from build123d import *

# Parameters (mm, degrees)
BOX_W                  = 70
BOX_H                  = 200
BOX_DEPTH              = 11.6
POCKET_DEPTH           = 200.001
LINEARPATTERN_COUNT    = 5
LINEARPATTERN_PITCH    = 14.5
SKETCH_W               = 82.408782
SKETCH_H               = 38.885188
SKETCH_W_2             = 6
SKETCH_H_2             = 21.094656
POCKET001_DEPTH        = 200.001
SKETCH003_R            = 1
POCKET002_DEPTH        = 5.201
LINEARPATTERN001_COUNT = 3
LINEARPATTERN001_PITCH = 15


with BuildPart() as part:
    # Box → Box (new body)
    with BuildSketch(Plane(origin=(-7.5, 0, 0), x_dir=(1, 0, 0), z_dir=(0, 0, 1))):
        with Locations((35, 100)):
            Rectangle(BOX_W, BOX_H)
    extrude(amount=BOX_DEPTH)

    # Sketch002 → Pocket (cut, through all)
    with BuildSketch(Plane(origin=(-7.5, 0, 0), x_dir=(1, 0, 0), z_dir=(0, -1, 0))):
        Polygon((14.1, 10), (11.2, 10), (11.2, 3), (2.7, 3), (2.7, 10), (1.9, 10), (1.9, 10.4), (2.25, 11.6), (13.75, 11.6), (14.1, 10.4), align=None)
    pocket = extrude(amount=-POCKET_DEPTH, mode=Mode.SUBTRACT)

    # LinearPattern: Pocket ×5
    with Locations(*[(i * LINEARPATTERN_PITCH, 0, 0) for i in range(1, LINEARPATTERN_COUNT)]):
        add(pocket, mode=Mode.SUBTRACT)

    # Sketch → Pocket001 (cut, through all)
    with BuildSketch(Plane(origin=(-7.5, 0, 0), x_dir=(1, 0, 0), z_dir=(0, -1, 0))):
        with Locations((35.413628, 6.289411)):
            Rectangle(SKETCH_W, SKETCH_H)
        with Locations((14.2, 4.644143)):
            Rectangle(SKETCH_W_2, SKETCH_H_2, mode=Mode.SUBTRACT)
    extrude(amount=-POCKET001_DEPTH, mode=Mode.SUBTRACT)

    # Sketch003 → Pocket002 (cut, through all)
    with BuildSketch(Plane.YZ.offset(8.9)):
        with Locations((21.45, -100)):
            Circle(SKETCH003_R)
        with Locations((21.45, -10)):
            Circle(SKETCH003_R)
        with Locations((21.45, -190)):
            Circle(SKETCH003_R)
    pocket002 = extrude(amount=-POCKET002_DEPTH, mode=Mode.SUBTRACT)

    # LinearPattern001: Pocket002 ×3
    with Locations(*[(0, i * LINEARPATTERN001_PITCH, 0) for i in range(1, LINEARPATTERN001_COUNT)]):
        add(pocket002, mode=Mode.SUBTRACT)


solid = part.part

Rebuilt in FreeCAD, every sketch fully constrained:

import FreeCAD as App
import Part
import Sketcher


def add_polygon(sketch, points):
    """Adds a closed chain of lines whose ends are joined by coincident constraints."""
    first, n = sketch.GeometryCount, len(points)
    for a, b in zip(points, points[1:] + points[:1]):
        sketch.addGeometry(Part.LineSegment(App.Vector(*a, 0), App.Vector(*b, 0)), False)
    for i in range(n):
        sketch.addConstraint(Sketcher.Constraint("Coincident", first + i, 2, first + (i + 1) % n, 1))

doc = App.newDocument("Part")
params = doc.addObject("Spreadsheet::Sheet", "Params")
for row, (alias, value) in enumerate([
    ("sketch1_width", "70 mm"),
    ("sketch1_height", "200 mm"),
    ("pad1_length", "11.6 mm"),
    ("sketch2_height", "7 mm"),
    ("sketch2_width", "2.9 mm"),
    ("sketch2_width2", "11.5 mm"),
    ("sketch2_width3", "0.8 mm"),
    ("sketch2_width4", "8.5 mm"),
    ("linearpattern_pitch", "14.5 mm"),
    ("sketch3_width", "6 mm"),
    ("sketch4_diameter", "2 mm"),
    ("linearpattern2_pitch", "15 mm"),
], start=1):
    params.set(f"A{row}", alias)
    params.set(f"B{row}", "=" + value)
    params.setAlias(f"B{row}", alias)

body = doc.addObject("PartDesign::Body", "Body")

sketch1 = doc.addObject("Sketcher::SketchObject", "Sketch")
body.addObject(sketch1)
sketch1.AttachmentSupport = (doc.XY_Plane, [""])
sketch1.MapMode = "FlatFace"
add_polygon(sketch1, [(-8, 200), (-8, 0), (62, 0), (62, 200)])
sketch1.addConstraint([
    Sketcher.Constraint("Vertical", 0),
    Sketcher.Constraint("Horizontal", 1),
    Sketcher.Constraint("Vertical", 2),
    Sketcher.Constraint("Horizontal", 3),
    Sketcher.Constraint("PointOnObject", 0, 2, -1),
    Sketcher.Constraint("DistanceX", 1, 1, 1, 2, 70.0),
    Sketcher.Constraint("DistanceY", 0, 2, 0, 1, 200.0),
    Sketcher.Constraint("DistanceX", 0, 2, -1, 1, 7.5),
])
sketch1.setExpression("Constraints[9]", "Params.sketch1_width")
sketch1.setExpression("Constraints[10]", "Params.sketch1_height")
pad1 = doc.addObject("PartDesign::Pad", "Pad")
body.addObject(pad1)
pad1.Profile = sketch1
pad1.setExpression("Length", "Params.pad1_length")

sketch2 = doc.addObject("Sketcher::SketchObject", "Sketch001")
body.addObject(sketch2)
sketch2.AttachmentSupport = (doc.XZ_Plane, [""])
sketch2.MapMode = "FlatFace"
add_polygon(sketch2, [(3.7, 10), (6.6, 10), (6.6, 10.4), (6.25, 11.6), (-5.25, 11.6), (-5.6, 10.4), (-5.6, 10), (-4.8, 10), (-4.8, 3), (3.7, 3)])
sketch2.addConstraint([
    Sketcher.Constraint("Horizontal", 0),
    Sketcher.Constraint("Vertical", 1),
    Sketcher.Constraint("Horizontal", 3),
    Sketcher.Constraint("Vertical", 5),
    Sketcher.Constraint("Horizontal", 6),
    Sketcher.Constraint("Vertical", 7),
    Sketcher.Constraint("Horizontal", 8),
    Sketcher.Constraint("Vertical", 9),
    Sketcher.Constraint("Horizontal", 1, 2, 4, 2),
    Sketcher.Constraint("Horizontal", 0, 2, 5, 2),
    Sketcher.Constraint("Equal", 2, 4),
    Sketcher.Constraint("DistanceY", 7, 2, 7, 1, 7.0),
    Sketcher.Constraint("DistanceX", 0, 1, 0, 2, 2.9),
    Sketcher.Constraint("DistanceX", 3, 2, 3, 1, 11.5),
    Sketcher.Constraint("DistanceX", 6, 1, 6, 2, 0.8),
    Sketcher.Constraint("DistanceX", 8, 1, 8, 2, 8.5),
    Sketcher.Constraint("DistanceY", 1, 1, 1, 2, 0.4),
    Sketcher.Constraint("DistanceY", -1, 1, 0, 2, 10.0),
    Sketcher.Constraint("DistanceX", -1, 1, 0, 2, 6.6),
    Sketcher.Constraint("DistanceY", -1, 1, 2, 2, 11.6),
])
sketch2.setExpression("Constraints[21]", "Params.sketch2_height")
sketch2.setExpression("Constraints[22]", "Params.sketch2_width")
sketch2.setExpression("Constraints[23]", "Params.sketch2_width2")
sketch2.setExpression("Constraints[24]", "Params.sketch2_width3")
sketch2.setExpression("Constraints[25]", "Params.sketch2_width4")
pocket1 = doc.addObject("PartDesign::Pocket", "Pocket")
body.addObject(pocket1)
pocket1.Profile = sketch2
pocket1.Type = "ThroughAll"
doc.recompute()

linearpattern = doc.addObject("PartDesign::LinearPattern", "LinearPattern")
body.addObject(linearpattern)
linearpattern.Originals = [pocket1]
linearpattern.Direction = (doc.X_Axis, [""])
linearpattern.Mode = "offset"
linearpattern.setExpression("Offset", "Params.linearpattern_pitch")
linearpattern.Occurrences = 5
body.Tip = linearpattern

sketch3 = doc.addObject("Sketcher::SketchObject", "Sketch002")
body.addObject(sketch3)
sketch3.AttachmentSupport = (doc.XZ_Plane, [""])
sketch3.MapMode = "FlatFace"
add_polygon(sketch3, [(-13, 26), (-13, -13), (69, -13), (69, 26)])
add_polygon(sketch3, [(10, -6), (4, -6), (4, 15), (10, 15)])
sketch3.addConstraint([
    Sketcher.Constraint("Vertical", 0),
    Sketcher.Constraint("Horizontal", 1),
    Sketcher.Constraint("Vertical", 2),
    Sketcher.Constraint("Horizontal", 3),
    Sketcher.Constraint("Horizontal", 4),
    Sketcher.Constraint("Vertical", 5),
    Sketcher.Constraint("Horizontal", 6),
    Sketcher.Constraint("Vertical", 7),
    Sketcher.Constraint("DistanceX", 4, 2, 4, 1, 6.0),
    Sketcher.Constraint("DistanceX", -1, 1, 4, 2, 3.7),
    Sketcher.Constraint("DistanceY", 0, 2, 4, 2, 7.249998),
    Sketcher.Constraint("DistanceX", 1, 1, 1, 2, 82.408782),
    Sketcher.Constraint("DistanceY", 0, 2, 0, 1, 38.885188),
    Sketcher.Constraint("DistanceY", 5, 1, 5, 2, 21.094656),
    Sketcher.Constraint("DistanceX", -1, 1, 1, 2, 69.118019),
    Sketcher.Constraint("DistanceY", -1, 1, 5, 2, 15.191471),
])
sketch3.setExpression("Constraints[16]", "Params.sketch3_width")
pocket2 = doc.addObject("PartDesign::Pocket", "Pocket001")
body.addObject(pocket2)
pocket2.Profile = sketch3
pocket2.Type = "ThroughAll"

sketch4 = doc.addObject("Sketcher::SketchObject", "Sketch003")
body.addObject(sketch4)
sketch4.AttachmentSupport = (doc.YZ_Plane, [""])
sketch4.MapMode = "FlatFace"
sketch4.AttachmentOffset = App.Placement(App.Vector(0, 0, 8.9), App.Rotation())
sketch4.addGeometry([
    Part.Circle(App.Vector(21.4, -100, 0), App.Vector(0, 0, 1), 1),
    Part.Circle(App.Vector(21.4, -10, 0), App.Vector(0, 0, 1), 1),
    Part.Circle(App.Vector(21.4, -190, 0), App.Vector(0, 0, 1), 1),
], False)
sketch4.addConstraint([
    Sketcher.Constraint("Equal", 0, 1),
    Sketcher.Constraint("Equal", 1, 2),
    Sketcher.Constraint("Vertical", 0, 3, 1, 3),
    Sketcher.Constraint("Vertical", 1, 3, 2, 3),
    Sketcher.Constraint("Diameter", 0, 2.0),
    Sketcher.Constraint("DistanceY", 0, 3, -1, 1, 100.0),
    Sketcher.Constraint("DistanceY", 1, 3, -1, 1, 10.0),
    Sketcher.Constraint("DistanceY", 2, 3, -1, 1, 190.0),
    Sketcher.Constraint("DistanceX", -1, 1, 0, 3, 21.45),
])
sketch4.setExpression("Constraints[4]", "Params.sketch4_diameter")
pocket3 = doc.addObject("PartDesign::Pocket", "Pocket002")
body.addObject(pocket3)
pocket3.Profile = sketch4
pocket3.Type = "ThroughAll"
doc.recompute()

linearpattern2 = doc.addObject("PartDesign::LinearPattern", "LinearPattern001")
body.addObject(linearpattern2)
linearpattern2.Originals = [pocket3]
linearpattern2.Direction = (doc.Y_Axis, [""])
linearpattern2.Mode = "offset"
linearpattern2.setExpression("Offset", "Params.linearpattern2_pitch")
linearpattern2.Occurrences = 3
body.Tip = linearpattern2

doc.recompute()
